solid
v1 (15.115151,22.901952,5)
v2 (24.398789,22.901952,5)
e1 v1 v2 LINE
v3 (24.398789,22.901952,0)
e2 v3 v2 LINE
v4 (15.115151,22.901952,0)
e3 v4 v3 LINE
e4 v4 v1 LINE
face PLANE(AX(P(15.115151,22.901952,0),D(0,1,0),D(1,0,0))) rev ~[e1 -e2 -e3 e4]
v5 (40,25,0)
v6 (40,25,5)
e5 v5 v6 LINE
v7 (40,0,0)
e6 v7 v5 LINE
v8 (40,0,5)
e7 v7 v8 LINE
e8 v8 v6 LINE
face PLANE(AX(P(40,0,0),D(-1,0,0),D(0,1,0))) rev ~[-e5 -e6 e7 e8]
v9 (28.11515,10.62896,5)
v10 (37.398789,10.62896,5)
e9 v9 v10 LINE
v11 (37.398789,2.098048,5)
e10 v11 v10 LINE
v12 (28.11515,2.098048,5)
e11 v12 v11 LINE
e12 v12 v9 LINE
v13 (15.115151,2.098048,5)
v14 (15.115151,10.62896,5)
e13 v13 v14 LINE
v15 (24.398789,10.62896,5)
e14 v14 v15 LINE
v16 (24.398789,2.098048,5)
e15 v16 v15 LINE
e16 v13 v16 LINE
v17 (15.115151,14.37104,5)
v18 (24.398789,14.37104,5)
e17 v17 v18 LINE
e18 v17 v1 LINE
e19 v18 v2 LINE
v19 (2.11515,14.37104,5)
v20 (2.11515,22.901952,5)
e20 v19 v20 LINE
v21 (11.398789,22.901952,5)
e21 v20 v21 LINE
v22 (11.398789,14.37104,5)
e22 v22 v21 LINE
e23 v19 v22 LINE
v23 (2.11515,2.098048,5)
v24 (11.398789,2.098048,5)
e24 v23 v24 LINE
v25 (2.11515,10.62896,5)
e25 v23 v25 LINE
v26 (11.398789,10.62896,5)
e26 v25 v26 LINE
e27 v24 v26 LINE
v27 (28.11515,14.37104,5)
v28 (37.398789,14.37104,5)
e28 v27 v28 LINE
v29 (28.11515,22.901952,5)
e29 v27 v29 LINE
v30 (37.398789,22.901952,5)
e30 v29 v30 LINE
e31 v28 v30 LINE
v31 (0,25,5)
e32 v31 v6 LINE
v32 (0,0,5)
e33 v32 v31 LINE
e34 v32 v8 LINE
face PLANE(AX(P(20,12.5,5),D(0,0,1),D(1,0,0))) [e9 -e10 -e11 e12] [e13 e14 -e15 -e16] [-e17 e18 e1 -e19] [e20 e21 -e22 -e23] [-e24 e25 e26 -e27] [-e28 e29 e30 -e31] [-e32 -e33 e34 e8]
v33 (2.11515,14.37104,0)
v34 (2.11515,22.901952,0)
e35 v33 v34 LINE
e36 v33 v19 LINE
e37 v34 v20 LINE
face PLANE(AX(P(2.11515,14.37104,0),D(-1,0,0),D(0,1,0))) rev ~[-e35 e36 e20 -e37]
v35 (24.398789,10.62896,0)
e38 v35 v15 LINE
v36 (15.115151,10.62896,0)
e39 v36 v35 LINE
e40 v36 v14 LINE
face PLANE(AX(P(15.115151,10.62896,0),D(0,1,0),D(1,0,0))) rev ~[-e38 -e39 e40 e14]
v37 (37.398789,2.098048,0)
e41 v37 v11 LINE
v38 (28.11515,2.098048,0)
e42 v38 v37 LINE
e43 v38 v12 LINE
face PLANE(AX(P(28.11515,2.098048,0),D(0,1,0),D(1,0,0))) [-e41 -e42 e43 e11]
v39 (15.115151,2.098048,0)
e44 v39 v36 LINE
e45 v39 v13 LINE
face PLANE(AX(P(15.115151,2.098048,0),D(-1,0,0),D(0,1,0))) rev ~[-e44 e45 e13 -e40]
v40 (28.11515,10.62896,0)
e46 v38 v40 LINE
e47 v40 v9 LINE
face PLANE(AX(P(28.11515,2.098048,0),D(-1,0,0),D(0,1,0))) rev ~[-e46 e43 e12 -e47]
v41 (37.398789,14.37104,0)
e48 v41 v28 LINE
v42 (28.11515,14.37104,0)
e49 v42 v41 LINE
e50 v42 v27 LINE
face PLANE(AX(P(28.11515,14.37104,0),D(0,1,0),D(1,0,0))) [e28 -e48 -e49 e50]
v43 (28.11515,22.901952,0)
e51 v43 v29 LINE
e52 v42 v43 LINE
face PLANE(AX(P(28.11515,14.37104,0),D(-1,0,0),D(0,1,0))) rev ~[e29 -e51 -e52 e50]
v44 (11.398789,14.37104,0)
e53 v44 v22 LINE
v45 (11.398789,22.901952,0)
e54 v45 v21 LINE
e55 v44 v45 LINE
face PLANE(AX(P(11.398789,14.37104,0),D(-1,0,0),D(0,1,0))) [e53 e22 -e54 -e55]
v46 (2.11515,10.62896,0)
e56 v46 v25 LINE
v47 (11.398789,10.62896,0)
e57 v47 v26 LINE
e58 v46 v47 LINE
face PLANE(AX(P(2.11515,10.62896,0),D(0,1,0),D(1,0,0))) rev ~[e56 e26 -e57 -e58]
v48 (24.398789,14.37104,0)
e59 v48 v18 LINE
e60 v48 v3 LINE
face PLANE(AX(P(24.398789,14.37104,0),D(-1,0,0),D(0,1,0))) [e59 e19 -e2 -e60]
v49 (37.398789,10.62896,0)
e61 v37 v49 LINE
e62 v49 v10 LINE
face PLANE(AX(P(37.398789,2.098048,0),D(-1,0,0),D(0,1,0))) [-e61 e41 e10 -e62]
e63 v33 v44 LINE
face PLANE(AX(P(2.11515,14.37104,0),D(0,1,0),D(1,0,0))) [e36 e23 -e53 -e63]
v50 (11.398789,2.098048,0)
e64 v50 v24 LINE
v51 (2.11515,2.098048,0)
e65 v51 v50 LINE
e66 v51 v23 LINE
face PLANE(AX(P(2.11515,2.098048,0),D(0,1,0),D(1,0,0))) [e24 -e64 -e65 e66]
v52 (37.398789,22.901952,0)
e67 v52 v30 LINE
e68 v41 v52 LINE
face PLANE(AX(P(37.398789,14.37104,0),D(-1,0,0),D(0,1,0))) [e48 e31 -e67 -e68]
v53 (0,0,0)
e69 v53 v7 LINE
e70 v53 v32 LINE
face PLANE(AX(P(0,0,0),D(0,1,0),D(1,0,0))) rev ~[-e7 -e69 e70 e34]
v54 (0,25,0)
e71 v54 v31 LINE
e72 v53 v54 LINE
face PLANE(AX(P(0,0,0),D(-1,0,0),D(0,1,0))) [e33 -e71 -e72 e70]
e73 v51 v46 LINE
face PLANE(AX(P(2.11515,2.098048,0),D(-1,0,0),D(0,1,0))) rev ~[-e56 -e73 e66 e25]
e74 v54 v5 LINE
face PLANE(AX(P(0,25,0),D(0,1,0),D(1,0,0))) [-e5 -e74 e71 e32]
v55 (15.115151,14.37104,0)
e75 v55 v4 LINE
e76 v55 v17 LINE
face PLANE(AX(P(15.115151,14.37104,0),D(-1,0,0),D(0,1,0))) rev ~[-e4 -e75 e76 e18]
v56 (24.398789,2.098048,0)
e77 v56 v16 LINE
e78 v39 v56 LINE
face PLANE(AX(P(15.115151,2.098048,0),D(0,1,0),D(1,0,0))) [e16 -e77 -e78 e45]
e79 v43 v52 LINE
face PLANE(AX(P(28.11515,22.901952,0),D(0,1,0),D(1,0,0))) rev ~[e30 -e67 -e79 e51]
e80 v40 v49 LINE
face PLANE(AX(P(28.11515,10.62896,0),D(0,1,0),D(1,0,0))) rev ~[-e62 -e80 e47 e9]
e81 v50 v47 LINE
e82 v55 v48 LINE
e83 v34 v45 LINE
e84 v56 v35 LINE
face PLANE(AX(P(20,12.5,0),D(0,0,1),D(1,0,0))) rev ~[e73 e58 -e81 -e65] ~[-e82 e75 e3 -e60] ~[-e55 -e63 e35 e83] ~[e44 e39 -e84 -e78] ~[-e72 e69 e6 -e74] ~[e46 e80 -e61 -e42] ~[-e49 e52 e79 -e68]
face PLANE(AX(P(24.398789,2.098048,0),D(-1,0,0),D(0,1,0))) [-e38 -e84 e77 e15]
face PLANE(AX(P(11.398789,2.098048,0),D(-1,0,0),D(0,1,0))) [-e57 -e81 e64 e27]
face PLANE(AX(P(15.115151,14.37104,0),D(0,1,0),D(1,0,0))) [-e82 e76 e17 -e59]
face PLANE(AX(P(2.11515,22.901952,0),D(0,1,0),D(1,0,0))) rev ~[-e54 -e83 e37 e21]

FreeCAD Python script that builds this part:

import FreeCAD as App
import Part
import Sketcher

doc = App.newDocument("Part")
params = doc.addObject("Spreadsheet::Sheet", "Params")
for row, (alias, value) in enumerate([
    ("sketch1_width", "40 mm"),
    ("sketch1_height", "25 mm"),
    ("pad1_length", "5 mm"),
], start=1):
    params.set(f"A{row}", alias)
    params.set(f"B{row}", "=" + value)
    params.setAlias(f"B{row}", alias)

body = doc.addObject("PartDesign::Body", "Body")

sketch1 = body.newObject("Sketcher::SketchObject", "Sketch")
sketch1.AttachmentSupport = (doc.getObject("XY_Plane"), [""])
sketch1.MapMode = "FlatFace"
sketch1.addGeometry([
    Part.LineSegment(App.Vector(0, 25, 0), App.Vector(0, 0, 0)),
    Part.LineSegment(App.Vector(0, 0, 0), App.Vector(40, 0, 0)),
    Part.LineSegment(App.Vector(40, 0, 0), App.Vector(40, 25, 0)),
    Part.LineSegment(App.Vector(40, 25, 0), App.Vector(0, 25, 0)),
    Part.LineSegment(App.Vector(11, 2, 0), App.Vector(2, 2, 0)),
    Part.LineSegment(App.Vector(2, 2, 0), App.Vector(2, 11, 0)),
    Part.LineSegment(App.Vector(2, 11, 0), App.Vector(11, 11, 0)),
    Part.LineSegment(App.Vector(11, 11, 0), App.Vector(11, 2, 0)),
    Part.LineSegment(App.Vector(24, 2, 0), App.Vector(15, 2, 0)),
    Part.LineSegment(App.Vector(15, 2, 0), App.Vector(15, 11, 0)),
    Part.LineSegment(App.Vector(15, 11, 0), App.Vector(24, 11, 0)),
    Part.LineSegment(App.Vector(24, 11, 0), App.Vector(24, 2, 0)),
    Part.LineSegment(App.Vector(37, 2, 0), App.Vector(28, 2, 0)),
    Part.LineSegment(App.Vector(28, 2, 0), App.Vector(28, 11, 0)),
    Part.LineSegment(App.Vector(28, 11, 0), App.Vector(37, 11, 0)),
    Part.LineSegment(App.Vector(37, 11, 0), App.Vector(37, 2, 0)),
    Part.LineSegment(App.Vector(11, 14, 0), App.Vector(2, 14, 0)),
    Part.LineSegment(App.Vector(2, 14, 0), App.Vector(2, 23, 0)),
    Part.LineSegment(App.Vector(2, 23, 0), App.Vector(11, 23, 0)),
    Part.LineSegment(App.Vector(11, 23, 0), App.Vector(11, 14, 0)),
    Part.LineSegment(App.Vector(24, 14, 0), App.Vector(15, 14, 0)),
    Part.LineSegment(App.Vector(15, 14, 0), App.Vector(15, 23, 0)),
    Part.LineSegment(App.Vector(15, 23, 0), App.Vector(24, 23, 0)),
    Part.LineSegment(App.Vector(24, 23, 0), App.Vector(24, 14, 0)),
    Part.LineSegment(App.Vector(37, 14, 0), App.Vector(28, 14, 0)),
    Part.LineSegment(App.Vector(28, 14, 0), App.Vector(28, 23, 0)),
    Part.LineSegment(App.Vector(28, 23, 0), App.Vector(37, 23, 0)),
    Part.LineSegment(App.Vector(37, 23, 0), App.Vector(37, 14, 0)),
], False)
sketch1.addConstraint([
    Sketcher.Constraint("Coincident", 0, 2, 1, 1),
    Sketcher.Constraint("Coincident", 1, 2, 2, 1),
    Sketcher.Constraint("Coincident", 2, 2, 3, 1),
    Sketcher.Constraint("Coincident", 3, 2, 0, 1),
    Sketcher.Constraint("Coincident", 4, 2, 5, 1),
    Sketcher.Constraint("Coincident", 5, 2, 6, 1),
    Sketcher.Constraint("Coincident", 6, 2, 7, 1),
    Sketcher.Constraint("Coincident", 7, 2, 4, 1),
    Sketcher.Constraint("Coincident", 8, 2, 9, 1),
    Sketcher.Constraint("Coincident", 9, 2, 10, 1),
    Sketcher.Constraint("Coincident", 10, 2, 11, 1),
    Sketcher.Constraint("Coincident", 11, 2, 8, 1),
    Sketcher.Constraint("Coincident", 12, 2, 13, 1),
    Sketcher.Constraint("Coincident", 13, 2, 14, 1),
    Sketcher.Constraint("Coincident", 14, 2, 15, 1),
    Sketcher.Constraint("Coincident", 15, 2, 12, 1),
    Sketcher.Constraint("Coincident", 16, 2, 17, 1),
    Sketcher.Constraint("Coincident", 17, 2, 18, 1),
    Sketcher.Constraint("Coincident", 18, 2, 19, 1),
    Sketcher.Constraint("Coincident", 19, 2, 16, 1),
    Sketcher.Constraint("Coincident", 20, 2, 21, 1),
    Sketcher.Constraint("Coincident", 21, 2, 22, 1),
    Sketcher.Constraint("Coincident", 22, 2, 23, 1),
    Sketcher.Constraint("Coincident", 23, 2, 20, 1),
    Sketcher.Constraint("Coincident", 24, 2, 25, 1),
    Sketcher.Constraint("Coincident", 25, 2, 26, 1),
    Sketcher.Constraint("Coincident", 26, 2, 27, 1),
    Sketcher.Constraint("Coincident", 27, 2, 24, 1),
    Sketcher.Constraint("Vertical", 0),
    Sketcher.Constraint("Horizontal", 1),
    Sketcher.Constraint("Vertical", 2),
    Sketcher.Constraint("Horizontal", 3),
    Sketcher.Constraint("Horizontal", 4),
    Sketcher.Constraint("Vertical", 5),
    Sketcher.Constraint("Horizontal", 6),
    Sketcher.Constraint("Vertical", 7),
    Sketcher.Constraint("Horizontal", 8),
    Sketcher.Constraint("Vertical", 9),
    Sketcher.Constraint("Horizontal", 10),
    Sketcher.Constraint("Vertical", 11),
    Sketcher.Constraint("Horizontal", 12),
    Sketcher.Constraint("Vertical", 13),
    Sketcher.Constraint("Horizontal", 14),
    Sketcher.Constraint("Vertical", 15),
    Sketcher.Constraint("Horizontal", 16),
    Sketcher.Constraint("Vertical", 17),
    Sketcher.Constraint("Horizontal", 18),
    Sketcher.Constraint("Vertical", 19),
    Sketcher.Constraint("Horizontal", 20),
    Sketcher.Constraint("Vertical", 21),
    Sketcher.Constraint("Horizontal", 22),
    Sketcher.Constraint("Vertical", 23),
    Sketcher.Constraint("Horizontal", 24),
    Sketcher.Constraint("Vertical", 25),
    Sketcher.Constraint("Horizontal", 26),
    Sketcher.Constraint("Vertical", 27),
    Sketcher.Constraint("Coincident", 0, 2, -1, 1),
    Sketcher.Constraint("Horizontal", 7, 2, 8, 2),
    Sketcher.Constraint("Horizontal", 6, 2, 9, 2),
    Sketcher.Constraint("Horizontal", 11, 2, 12, 2),
    Sketcher.Constraint("Horizontal", 10, 2, 13, 2),
    Sketcher.Constraint("Horizontal", 19, 2, 20, 2),
    Sketcher.Constraint("Horizontal", 18, 2, 21, 2),
    Sketcher.Constraint("Horizontal", 23, 2, 24, 2),
    Sketcher.Constraint("Horizontal", 22, 2, 25, 2),
    Sketcher.Constraint("Vertical", 5, 2, 16, 2),
    Sketcher.Constraint("Vertical", 7, 2, 18, 2),
    Sketcher.Constraint("Vertical", 9, 2, 20, 2),
    Sketcher.Constraint("Vertical", 11, 2, 22, 2),
    Sketcher.Constraint("Vertical", 13, 2, 24, 2),
    Sketcher.Constraint("Vertical", 15, 2, 26, 2),
    Sketcher.Constraint("Equal", 6, 8),
    Sketcher.Constraint("Equal", 10, 12),
    Sketcher.Constraint("Equal", 15, 17),
    Sketcher.Constraint("DistanceX", 1, 1, 1, 2, 40.0),
    Sketcher.Constraint("DistanceY", 0, 2, 0, 1, 25.0),
    Sketcher.Constraint("DistanceX", 4, 2, 8, 2, 13.0),
    Sketcher.Constraint("DistanceX", 8, 2, 12, 2, 13.0),
    Sketcher.Constraint("DistanceX", 4, 2, 4, 1, 9.283639),
    Sketcher.Constraint("DistanceY", 5, 1, 5, 2, 8.530912),
    Sketcher.Constraint("DistanceX", -1, 1, 4, 2, 2.11515),
    Sketcher.Constraint("DistanceY", -1, 1, 5, 2, 10.62896),
    Sketcher.Constraint("DistanceY", -1, 1, 16, 2, 14.37104),
])
sketch1.setExpression("Constraints[74]", "Params.sketch1_width")
sketch1.setExpression("Constraints[75]", "Params.sketch1_height")
pad1 = body.newObject("PartDesign::Pad", "Pad")
pad1.Profile = sketch1
pad1.setExpression("Length", "Params.pad1_length")

doc.recompute()
